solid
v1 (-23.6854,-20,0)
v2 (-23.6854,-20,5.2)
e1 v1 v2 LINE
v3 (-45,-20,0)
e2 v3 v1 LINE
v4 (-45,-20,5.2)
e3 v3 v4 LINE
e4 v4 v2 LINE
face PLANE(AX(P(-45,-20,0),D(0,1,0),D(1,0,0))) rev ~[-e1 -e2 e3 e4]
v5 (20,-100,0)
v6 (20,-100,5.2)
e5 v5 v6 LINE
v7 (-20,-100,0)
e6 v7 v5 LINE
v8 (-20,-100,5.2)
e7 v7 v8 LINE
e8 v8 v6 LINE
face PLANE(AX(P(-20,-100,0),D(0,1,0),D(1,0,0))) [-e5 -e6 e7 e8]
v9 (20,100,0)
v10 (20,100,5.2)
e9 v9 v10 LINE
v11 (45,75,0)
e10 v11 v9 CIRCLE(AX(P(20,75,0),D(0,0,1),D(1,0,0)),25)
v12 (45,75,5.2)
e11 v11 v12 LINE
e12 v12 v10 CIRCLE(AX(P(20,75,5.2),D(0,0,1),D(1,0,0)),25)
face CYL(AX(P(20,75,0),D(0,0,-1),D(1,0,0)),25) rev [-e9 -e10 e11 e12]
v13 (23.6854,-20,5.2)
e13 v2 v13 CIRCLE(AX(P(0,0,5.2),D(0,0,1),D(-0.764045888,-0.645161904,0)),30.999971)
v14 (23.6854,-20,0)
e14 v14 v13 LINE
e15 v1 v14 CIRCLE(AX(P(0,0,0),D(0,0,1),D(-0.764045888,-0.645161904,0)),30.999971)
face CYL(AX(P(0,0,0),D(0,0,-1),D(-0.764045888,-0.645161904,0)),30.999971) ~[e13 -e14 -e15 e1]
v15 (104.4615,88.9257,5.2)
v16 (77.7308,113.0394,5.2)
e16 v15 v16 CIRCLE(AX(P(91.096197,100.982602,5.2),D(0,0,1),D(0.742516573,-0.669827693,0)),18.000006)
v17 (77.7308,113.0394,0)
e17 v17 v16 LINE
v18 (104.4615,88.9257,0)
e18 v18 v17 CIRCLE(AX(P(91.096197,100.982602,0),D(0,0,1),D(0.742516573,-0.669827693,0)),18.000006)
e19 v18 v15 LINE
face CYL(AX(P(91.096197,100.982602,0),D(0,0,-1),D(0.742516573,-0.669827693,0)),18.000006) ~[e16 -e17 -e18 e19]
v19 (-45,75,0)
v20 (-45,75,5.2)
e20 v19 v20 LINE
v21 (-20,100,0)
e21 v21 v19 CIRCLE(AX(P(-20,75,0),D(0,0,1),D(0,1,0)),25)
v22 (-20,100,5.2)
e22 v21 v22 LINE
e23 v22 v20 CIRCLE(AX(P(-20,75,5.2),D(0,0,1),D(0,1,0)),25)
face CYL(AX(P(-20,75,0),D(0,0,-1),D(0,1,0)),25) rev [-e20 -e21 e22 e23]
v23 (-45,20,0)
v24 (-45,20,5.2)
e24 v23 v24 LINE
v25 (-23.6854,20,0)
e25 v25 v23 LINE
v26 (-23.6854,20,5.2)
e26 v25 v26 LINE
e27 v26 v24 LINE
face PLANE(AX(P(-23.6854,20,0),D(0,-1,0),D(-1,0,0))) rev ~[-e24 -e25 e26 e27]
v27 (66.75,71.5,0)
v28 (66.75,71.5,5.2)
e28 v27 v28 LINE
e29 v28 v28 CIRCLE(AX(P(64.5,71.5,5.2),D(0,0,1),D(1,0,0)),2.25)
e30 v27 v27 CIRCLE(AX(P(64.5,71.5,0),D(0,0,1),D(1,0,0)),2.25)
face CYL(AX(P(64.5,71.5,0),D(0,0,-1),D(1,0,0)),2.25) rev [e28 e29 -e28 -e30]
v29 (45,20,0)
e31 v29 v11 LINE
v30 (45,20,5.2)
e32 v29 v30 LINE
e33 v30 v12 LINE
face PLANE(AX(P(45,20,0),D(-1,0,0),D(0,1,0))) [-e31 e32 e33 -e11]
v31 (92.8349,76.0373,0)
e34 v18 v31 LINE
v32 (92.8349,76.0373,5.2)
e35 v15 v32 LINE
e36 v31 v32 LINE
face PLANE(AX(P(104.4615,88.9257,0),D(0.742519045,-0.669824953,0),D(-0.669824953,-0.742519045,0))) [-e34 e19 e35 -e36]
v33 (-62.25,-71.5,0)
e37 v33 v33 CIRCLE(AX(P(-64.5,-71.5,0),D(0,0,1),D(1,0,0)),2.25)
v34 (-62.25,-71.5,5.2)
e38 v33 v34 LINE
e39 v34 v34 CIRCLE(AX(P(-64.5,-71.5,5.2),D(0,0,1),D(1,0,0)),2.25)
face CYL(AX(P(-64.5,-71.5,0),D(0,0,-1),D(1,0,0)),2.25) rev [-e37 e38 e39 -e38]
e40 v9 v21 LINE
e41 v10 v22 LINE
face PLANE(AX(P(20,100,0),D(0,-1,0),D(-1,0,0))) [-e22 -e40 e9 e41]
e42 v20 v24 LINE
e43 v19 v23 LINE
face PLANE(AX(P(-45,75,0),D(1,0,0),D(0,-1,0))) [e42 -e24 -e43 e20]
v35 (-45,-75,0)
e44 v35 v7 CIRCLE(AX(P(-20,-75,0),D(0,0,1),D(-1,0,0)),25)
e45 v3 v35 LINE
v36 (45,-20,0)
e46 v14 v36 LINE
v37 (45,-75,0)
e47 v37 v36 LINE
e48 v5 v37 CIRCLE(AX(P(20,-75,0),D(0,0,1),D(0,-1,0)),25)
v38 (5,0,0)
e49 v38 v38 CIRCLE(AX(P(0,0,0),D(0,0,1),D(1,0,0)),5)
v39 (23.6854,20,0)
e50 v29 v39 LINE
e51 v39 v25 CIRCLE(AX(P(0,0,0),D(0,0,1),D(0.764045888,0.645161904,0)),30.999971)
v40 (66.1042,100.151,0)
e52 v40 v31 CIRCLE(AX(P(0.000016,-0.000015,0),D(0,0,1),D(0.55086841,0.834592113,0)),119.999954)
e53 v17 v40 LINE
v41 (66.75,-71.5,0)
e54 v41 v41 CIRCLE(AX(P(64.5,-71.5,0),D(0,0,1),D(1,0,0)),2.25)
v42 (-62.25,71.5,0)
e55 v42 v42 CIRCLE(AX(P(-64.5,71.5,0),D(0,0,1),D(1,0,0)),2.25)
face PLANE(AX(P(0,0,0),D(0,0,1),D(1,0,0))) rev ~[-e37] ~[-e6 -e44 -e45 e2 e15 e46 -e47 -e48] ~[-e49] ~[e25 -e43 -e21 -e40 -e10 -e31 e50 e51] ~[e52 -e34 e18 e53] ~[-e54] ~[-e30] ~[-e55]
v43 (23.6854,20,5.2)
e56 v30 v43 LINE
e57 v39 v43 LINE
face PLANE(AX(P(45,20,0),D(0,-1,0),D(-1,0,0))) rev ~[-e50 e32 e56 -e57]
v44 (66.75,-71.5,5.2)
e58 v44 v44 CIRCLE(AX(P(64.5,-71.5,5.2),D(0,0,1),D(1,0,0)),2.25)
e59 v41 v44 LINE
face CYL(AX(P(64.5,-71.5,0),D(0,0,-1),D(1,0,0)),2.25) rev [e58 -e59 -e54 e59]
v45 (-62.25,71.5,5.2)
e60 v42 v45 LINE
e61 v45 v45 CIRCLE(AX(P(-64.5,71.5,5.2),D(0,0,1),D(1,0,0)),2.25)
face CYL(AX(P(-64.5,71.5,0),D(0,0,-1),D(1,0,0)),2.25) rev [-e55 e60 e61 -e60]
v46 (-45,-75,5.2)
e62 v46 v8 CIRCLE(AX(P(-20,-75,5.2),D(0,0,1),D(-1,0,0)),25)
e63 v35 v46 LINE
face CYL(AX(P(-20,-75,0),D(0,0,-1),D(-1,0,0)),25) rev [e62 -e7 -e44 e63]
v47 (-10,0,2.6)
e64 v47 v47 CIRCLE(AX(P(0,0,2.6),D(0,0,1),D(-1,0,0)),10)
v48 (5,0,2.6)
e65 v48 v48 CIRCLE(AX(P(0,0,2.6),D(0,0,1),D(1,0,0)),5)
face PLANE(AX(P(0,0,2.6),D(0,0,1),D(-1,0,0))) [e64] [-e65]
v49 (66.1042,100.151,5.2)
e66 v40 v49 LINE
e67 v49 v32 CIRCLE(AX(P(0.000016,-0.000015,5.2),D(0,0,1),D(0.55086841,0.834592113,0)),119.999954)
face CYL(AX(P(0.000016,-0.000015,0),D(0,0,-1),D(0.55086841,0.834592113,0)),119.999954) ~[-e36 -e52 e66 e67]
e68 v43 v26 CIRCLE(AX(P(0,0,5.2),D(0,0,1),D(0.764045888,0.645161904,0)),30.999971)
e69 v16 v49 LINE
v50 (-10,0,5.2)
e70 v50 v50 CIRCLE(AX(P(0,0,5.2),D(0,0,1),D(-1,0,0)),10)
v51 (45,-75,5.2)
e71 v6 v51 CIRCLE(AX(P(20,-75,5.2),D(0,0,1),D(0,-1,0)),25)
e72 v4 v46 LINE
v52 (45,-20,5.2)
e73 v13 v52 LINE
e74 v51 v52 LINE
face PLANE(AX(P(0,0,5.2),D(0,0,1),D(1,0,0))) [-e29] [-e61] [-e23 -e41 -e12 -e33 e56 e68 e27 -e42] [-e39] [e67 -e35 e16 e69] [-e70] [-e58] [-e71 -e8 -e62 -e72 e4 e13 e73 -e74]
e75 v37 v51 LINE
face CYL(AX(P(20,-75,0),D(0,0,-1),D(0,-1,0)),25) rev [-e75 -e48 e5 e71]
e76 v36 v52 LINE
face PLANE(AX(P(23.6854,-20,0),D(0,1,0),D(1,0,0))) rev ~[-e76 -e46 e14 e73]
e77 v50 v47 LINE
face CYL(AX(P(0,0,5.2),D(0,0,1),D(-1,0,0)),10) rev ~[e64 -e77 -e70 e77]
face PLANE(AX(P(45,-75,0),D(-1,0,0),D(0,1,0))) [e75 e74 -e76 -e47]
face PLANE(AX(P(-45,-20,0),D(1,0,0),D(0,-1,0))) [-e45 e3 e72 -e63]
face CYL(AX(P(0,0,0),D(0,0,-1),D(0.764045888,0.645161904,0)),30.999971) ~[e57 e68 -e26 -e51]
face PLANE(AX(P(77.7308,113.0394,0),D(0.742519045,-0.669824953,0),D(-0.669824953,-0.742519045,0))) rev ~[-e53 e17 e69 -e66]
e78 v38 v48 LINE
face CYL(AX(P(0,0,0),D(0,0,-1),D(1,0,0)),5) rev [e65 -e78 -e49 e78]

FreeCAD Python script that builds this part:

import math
import FreeCAD as App
import Part
import Sketcher

V = App.Vector

doc = App.newDocument("Part")
body = doc.addObject("PartDesign::Body", "Body")

# Sketch on XY plane
sketch1 = body.newObject("Sketcher::SketchObject", "Sketch")
sketch1.AttachmentSupport = (doc.getObject("XY_Plane"), [""])
sketch1.MapMode = "FlatFace"
sketch1.addGeometry(Part.LineSegment(V(92.8, 76, 0), V(104.5, 88.9, 0)), False)
sketch1.addGeometry(Part.ArcOfCircle(Part.Circle(V(91.1, 101, 0), V(0, 0, 1), 18), math.radians(-42), math.radians(138)), False)
sketch1.addGeometry(Part.LineSegment(V(77.7, 113, 0), V(66.1, 100.2, 0)), False)
sketch1.addGeometry(Part.ArcOfCircle(Part.Circle(V(0, 0, 0), V(0, 0, 1), 120), math.radians(57), math.radians(399)), False)
sketch1.addGeometry(Part.Circle(V(-64.5, -71.5, 0), V(0, 0, 1), 2.2), False)
sketch1.addGeometry(Part.LineSegment(V(20, -100, 0), V(-20, -100, 0)), False)
sketch1.addGeometry(Part.ArcOfCircle(Part.Circle(V(-20, -75, 0), V(0, 0, 1), 25), math.radians(180), math.radians(270)), False)
sketch1.addGeometry(Part.LineSegment(V(-45, -75, 0), V(-45, -20, 0)), False)
sketch1.addGeometry(Part.LineSegment(V(-45, -20, 0), V(-23.7, -20, 0)), False)
sketch1.addGeometry(Part.ArcOfCircle(Part.Circle(V(0, 0, 0), V(0, 0, 1), 31), math.radians(-140), math.radians(-40)), False)
sketch1.addGeometry(Part.LineSegment(V(23.7, -20, 0), V(45, -20, 0)), False)
sketch1.addGeometry(Part.LineSegment(V(45, -20, 0), V(45, -75, 0)), False)
sketch1.addGeometry(Part.ArcOfCircle(Part.Circle(V(20, -75, 0), V(0, 0, 1), 25), math.radians(-90), math.radians(0)), False)
sketch1.addGeometry(Part.Circle(V(64.5, -71.5, 0), V(0, 0, 1), 2.2), False)
sketch1.addGeometry(Part.Circle(V(0, 0, 0), V(0, 0, 1), 5), False)
sketch1.addGeometry(Part.Circle(V(-64.5, 71.5, 0), V(0, 0, 1), 2.2), False)
sketch1.addGeometry(Part.LineSegment(V(-20, 100, 0), V(20, 100, 0)), False)
sketch1.addGeometry(Part.ArcOfCircle(Part.Circle(V(20, 75, 0), V(0, 0, 1), 25), math.radians(0), math.radians(90)), False)
sketch1.addGeometry(Part.LineSegment(V(45, 75, 0), V(45, 20, 0)), False)
sketch1.addGeometry(Part.LineSegment(V(45, 20, 0), V(23.7, 20, 0)), False)
sketch1.addGeometry(Part.ArcOfCircle(Part.Circle(V(0, 0, 0), V(0, 0, 1), 31), math.radians(40), math.radians(140)), False)
sketch1.addGeometry(Part.LineSegment(V(-23.7, 20, 0), V(-45, 20, 0)), False)
sketch1.addGeometry(Part.LineSegment(V(-45, 20, 0), V(-45, 75, 0)), False)
sketch1.addGeometry(Part.ArcOfCircle(Part.Circle(V(-20, 75, 0), V(0, 0, 1), 25), math.radians(90), math.radians(180)), False)
sketch1.addGeometry(Part.Circle(V(64.5, 71.5, 0), V(0, 0, 1), 2.2), False)
sketch1.addConstraint(Sketcher.Constraint("Tangent", 0, 2, 1, 1))
sketch1.addConstraint(Sketcher.Constraint("Tangent", 1, 2, 2, 1))
sketch1.addConstraint(Sketcher.Constraint("Coincident", 2, 2, 3, 1))
sketch1.addConstraint(Sketcher.Constraint("Coincident", 3, 2, 0, 1))
sketch1.addConstraint(Sketcher.Constraint("Tangent", 5, 2, 6, 2))
sketch1.addConstraint(Sketcher.Constraint("Tangent", 6, 1, 7, 1))
sketch1.addConstraint(Sketcher.Constraint("Coincident", 7, 2, 8, 1))
sketch1.addConstraint(Sketcher.Constraint("Coincident", 8, 2, 9, 1))
sketch1.addConstraint(Sketcher.Constraint("Coincident", 9, 2, 10, 1))
sketch1.addConstraint(Sketcher.Constraint("Coincident", 10, 2, 11, 1))
sketch1.addConstraint(Sketcher.Constraint("Tangent", 11, 2, 12, 2))
sketch1.addConstraint(Sketcher.Constraint("Tangent", 12, 1, 5, 1))
sketch1.addConstraint(Sketcher.Constraint("Tangent", 16, 2, 17, 2))
sketch1.addConstraint(Sketcher.Constraint("Tangent", 17, 1, 18, 1))
sketch1.addConstraint(Sketcher.Constraint("Coincident", 18, 2, 19, 1))
sketch1.addConstraint(Sketcher.Constraint("Coincident", 19, 2, 20, 1))
sketch1.addConstraint(Sketcher.Constraint("Coincident", 20, 2, 21, 1))
sketch1.addConstraint(Sketcher.Constraint("Coincident", 21, 2, 22, 1))
sketch1.addConstraint(Sketcher.Constraint("Tangent", 22, 2, 23, 2))
sketch1.addConstraint(Sketcher.Constraint("Tangent", 23, 1, 16, 1))
sketch1.addConstraint(Sketcher.Constraint("Horizontal", 5))
sketch1.addConstraint(Sketcher.Constraint("Vertical", 7))
sketch1.addConstraint(Sketcher.Constraint("Horizontal", 8))
sketch1.addConstraint(Sketcher.Constraint("Horizontal", 10))
sketch1.addConstraint(Sketcher.Constraint("Vertical", 11))
sketch1.addConstraint(Sketcher.Constraint("Horizontal", 16))
sketch1.addConstraint(Sketcher.Constraint("Vertical", 18))
sketch1.addConstraint(Sketcher.Constraint("Horizontal", 19))
sketch1.addConstraint(Sketcher.Constraint("Horizontal", 21))
sketch1.addConstraint(Sketcher.Constraint("Vertical", 22))
sketch1.addConstraint(Sketcher.Constraint("Coincident", 3, 3, -1, 1))
sketch1.addConstraint(Sketcher.Constraint("Coincident", 9, 3, -1, 1))
sketch1.addConstraint(Sketcher.Constraint("Coincident", 14, 3, -1, 1))
sketch1.addConstraint(Sketcher.Constraint("Coincident", 20, 3, -1, 1))
sketch1.addConstraint(Sketcher.Constraint("Equal", 6, 12))
sketch1.addConstraint(Sketcher.Constraint("Equal", 4, 13))
sketch1.addConstraint(Sketcher.Constraint("Equal", 13, 15))
sketch1.addConstraint(Sketcher.Constraint("Equal", 12, 17))
sketch1.addConstraint(Sketcher.Constraint("Equal", 9, 20))
sketch1.addConstraint(Sketcher.Constraint("Equal", 17, 23))
sketch1.addConstraint(Sketcher.Constraint("Equal", 15, 24))
sketch1.addConstraint(Sketcher.Constraint("Symmetric", 13, 3, 15, 3, -1, 1))
sketch1.addConstraint(Sketcher.Constraint("Symmetric", 6, 3, 17, 3, -1, 1))
sketch1.addConstraint(Sketcher.Constraint("Symmetric", 4, 3, 24, 3, -1, 1))
sketch1.addConstraint(Sketcher.Constraint("Symmetric", 10, 2, 21, 2, -1, 1))
sketch1.addConstraint(Sketcher.Constraint("Symmetric", 4, 3, 13, 3, -2))
sketch1.addConstraint(Sketcher.Constraint("Symmetric", 7, 2, 10, 2, -2))
sketch1.addConstraint(Sketcher.Constraint("Parallel", 0, 2))
sketch1.addConstraint(Sketcher.Constraint("Horizontal", 19, 2, 20, 2))
sketch1.addConstraint(Sketcher.Constraint("Equal", 0, 2))
sketch1.addConstraint(Sketcher.Constraint("Diameter", 14, 10.0))
sketch1.addConstraint(Sketcher.Constraint("Radius", 1, 18.0))
sketch1.addConstraint(Sketcher.Constraint("Radius", 3, 120.0))
sketch1.addConstraint(Sketcher.Constraint("Radius", 6, 25.0))
sketch1.addConstraint(Sketcher.Constraint("Radius", 9, 31.0))
sketch1.addConstraint(Sketcher.Constraint("Diameter", 4, 4.5))
sketch1.addConstraint(Sketcher.Constraint("DistanceX", 5, 2, 5, 1, 40.0))
sketch1.addConstraint(Sketcher.Constraint("DistanceY", 5, 2, -1, 1, 100.0))
sketch1.addConstraint(Sketcher.Constraint("DistanceX", 4, 3, 13, 3, 129.0))
sketch1.addConstraint(Sketcher.Constraint("DistanceY", 4, 3, 15, 3, 143.0))
sketch1.addConstraint(Sketcher.Constraint("DistanceY", 10, 2, 18, 2, 40.0))
sketch1.addConstraint(Sketcher.Constraint("DistanceY", -1, 1, 2, 2, 100.151))
sketch1.addConstraint(Sketcher.Constraint("DistanceX", 2, 2, 1, 3, 24.992))
pad1 = body.newObject("PartDesign::Pad", "Pad")
pad1.Profile = sketch1
pad1.Length = 5.2

# Sketch on XY plane
sketch2 = body.newObject("Sketcher::SketchObject", "Sketch001")
sketch2.AttachmentSupport = (doc.getObject("XY_Plane"), [""])
sketch2.MapMode = "FlatFace"
sketch2.AttachmentOffset = App.Placement(V(0, 0, 5.2), App.Rotation())
sketch2.addGeometry(Part.Circle(V(0, 0, 0), V(0, 0, 1), 10), False)
sketch2.addGeometry(Part.Circle(V(0, 0, 0), V(0, 0, 1), 5), False)
sketch2.addConstraint(Sketcher.Constraint("Coincident", 0, 3, -1, 1))
sketch2.addConstraint(Sketcher.Constraint("Coincident", 1, 3, -1, 1))
sketch2.addConstraint(Sketcher.Constraint("Diameter", 0, 20.0))
sketch2.addConstraint(Sketcher.Constraint("Diameter", 1, 10.0))
pocket1 = body.newObject("PartDesign::Pocket", "Pocket")
pocket1.Profile = sketch2
pocket1.Length = 2.6

doc.recompute()
